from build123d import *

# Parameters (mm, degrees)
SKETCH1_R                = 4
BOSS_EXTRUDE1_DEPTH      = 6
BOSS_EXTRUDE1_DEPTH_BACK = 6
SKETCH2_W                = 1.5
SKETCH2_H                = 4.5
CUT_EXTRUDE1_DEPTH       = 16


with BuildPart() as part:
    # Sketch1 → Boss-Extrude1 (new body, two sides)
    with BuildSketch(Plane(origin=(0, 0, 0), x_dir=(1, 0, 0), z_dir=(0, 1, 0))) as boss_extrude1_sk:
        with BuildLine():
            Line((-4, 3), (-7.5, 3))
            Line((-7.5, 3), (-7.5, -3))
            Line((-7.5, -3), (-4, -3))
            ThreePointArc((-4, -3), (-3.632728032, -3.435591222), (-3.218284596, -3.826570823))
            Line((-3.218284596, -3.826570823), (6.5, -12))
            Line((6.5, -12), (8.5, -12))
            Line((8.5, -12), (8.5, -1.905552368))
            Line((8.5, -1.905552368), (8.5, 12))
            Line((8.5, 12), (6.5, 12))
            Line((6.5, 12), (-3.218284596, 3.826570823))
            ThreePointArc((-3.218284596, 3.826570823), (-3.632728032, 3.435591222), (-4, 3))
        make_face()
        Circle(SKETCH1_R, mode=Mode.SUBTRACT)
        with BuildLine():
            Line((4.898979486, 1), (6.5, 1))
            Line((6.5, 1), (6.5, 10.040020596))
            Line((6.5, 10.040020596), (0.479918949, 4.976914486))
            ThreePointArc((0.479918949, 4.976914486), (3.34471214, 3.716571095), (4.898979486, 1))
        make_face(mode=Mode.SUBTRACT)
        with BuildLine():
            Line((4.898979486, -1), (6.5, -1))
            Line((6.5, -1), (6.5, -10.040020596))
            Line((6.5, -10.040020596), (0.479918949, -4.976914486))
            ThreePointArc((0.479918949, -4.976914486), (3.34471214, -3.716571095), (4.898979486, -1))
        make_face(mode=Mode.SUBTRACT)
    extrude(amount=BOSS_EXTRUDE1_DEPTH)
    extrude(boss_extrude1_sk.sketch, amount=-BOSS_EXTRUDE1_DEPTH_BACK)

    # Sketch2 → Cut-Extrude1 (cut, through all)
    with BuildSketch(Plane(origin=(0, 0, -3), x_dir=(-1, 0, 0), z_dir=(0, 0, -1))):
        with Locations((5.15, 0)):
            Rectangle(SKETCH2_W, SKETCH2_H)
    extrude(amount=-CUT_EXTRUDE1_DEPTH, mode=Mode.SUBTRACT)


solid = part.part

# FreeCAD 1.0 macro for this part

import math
import FreeCAD as App
import Part
import Sketcher

V = App.Vector

doc = App.newDocument("Part")
params = doc.addObject("Spreadsheet::Sheet", "Params")
for row, (alias, value) in enumerate([
    ("sketch1_diameter", "8 mm"),
    ("sketch1_radius", "5 mm"),
    ("sketch1_width", "2 mm"),
    ("sketch1_height", "6 mm"),
    ("sketch1_height2", "24 mm"),
    ("pad1_length", "6 mm"),
    ("pad1_length2", "6 mm"),
    ("sketch2_width", "1.5 mm"),
    ("sketch2_height", "4.5 mm"),
], start=1):
    params.set(f"A{row}", alias)
    params.set(f"B{row}", "=" + value)
    params.setAlias(f"B{row}", alias)

body = doc.addObject("PartDesign::Body", "Body")

sketch1 = body.newObject("Sketcher::SketchObject", "Sketch")
sketch1.AttachmentSupport = (doc.getObject("XZ_Plane"), [""])
sketch1.MapMode = "FlatFace"
sketch1.addGeometry([
    Part.LineSegment(V(-4, -3, 0), V(-7.5, -3, 0)),
    Part.LineSegment(V(-7.5, -3, 0), V(-7.5, 3, 0)),
    Part.LineSegment(V(-7.5, 3, 0), V(-4, 3, 0)),
    Part.ArcOfCircle(Part.Circle(V(0, 0, 0), V(0, 0, 1), 5), math.radians(130.07), math.radians(143.13)),
    Part.LineSegment(V(-3.2, 3.8, 0), V(6.5, 12, 0)),
    Part.LineSegment(V(6.5, 12, 0), V(8.5, 12, 0)),
    Part.LineSegment(V(8.5, 12, 0), V(8.5, -12, 0)),
    Part.LineSegment(V(8.5, -12, 0), V(6.5, -12, 0)),
    Part.LineSegment(V(6.5, -12, 0), V(-3.2, -3.8, 0)),
    Part.ArcOfCircle(Part.Circle(V(0, 0, 0), V(0, 0, 1), 5), math.radians(-143.13), math.radians(-130.07)),
    Part.ArcOfCircle(Part.Circle(V(0, 0, 0), V(0, 0, 1), 5), math.radians(12), math.radians(84)),
    Part.LineSegment(V(4.9, 1, 0), V(6.5, 1, 0)),
    Part.LineSegment(V(6.5, 1, 0), V(6.5, 10, 0)),
    Part.LineSegment(V(6.5, 10, 0), V(0.5, 5, 0)),
    Part.Circle(V(0, 0, 0), V(0, 0, 1), 4),
    Part.LineSegment(V(6.5, -1, 0), V(4.9, -1, 0)),
    Part.ArcOfCircle(Part.Circle(V(0, 0, 0), V(0, 0, 1), 5), math.radians(-84), math.radians(-12)),
    Part.LineSegment(V(0.5, -5, 0), V(6.5, -10, 0)),
    Part.LineSegment(V(6.5, -10, 0), V(6.5, -1, 0)),
], False)
sketch1.addConstraint([
    Sketcher.Constraint("Coincident", 0, 2, 1, 1),
    Sketcher.Constraint("Coincident", 1, 2, 2, 1),
    Sketcher.Constraint("Coincident", 2, 2, 3, 2),
    Sketcher.Constraint("Tangent", 3, 1, 4, 1),
    Sketcher.Constraint("Coincident", 4, 2, 5, 1),
    Sketcher.Constraint("Coincident", 5, 2, 6, 1),
    Sketcher.Constraint("Coincident", 6, 2, 7, 1),
    Sketcher.Constraint("Coincident", 7, 2, 8, 1),
    Sketcher.Constraint("Tangent", 8, 2, 9, 2),
    Sketcher.Constraint("Coincident", 9, 1, 0, 1),
    Sketcher.Constraint("Coincident", 10, 1, 11, 1),
    Sketcher.Constraint("Coincident", 11, 2, 12, 1),
    Sketcher.Constraint("Coincident", 12, 2, 13, 1),
    Sketcher.Constraint("Coincident", 13, 2, 10, 2),
    Sketcher.Constraint("Coincident", 15, 2, 16, 2),
    Sketcher.Constraint("Coincident", 16, 1, 17, 1),
    Sketcher.Constraint("Coincident", 17, 2, 18, 1),
    Sketcher.Constraint("Coincident", 18, 2, 15, 1),
    Sketcher.Constraint("Horizontal", 0),
    Sketcher.Constraint("Vertical", 1),
    Sketcher.Constraint("Horizontal", 2),
    Sketcher.Constraint("Horizontal", 5),
    Sketcher.Constraint("Vertical", 6),
    Sketcher.Constraint("Horizontal", 7),
    Sketcher.Constraint("Horizontal", 11),
    Sketcher.Constraint("Vertical", 12),
    Sketcher.Constraint("Horizontal", 15),
    Sketcher.Constraint("Vertical", 18),
    Sketcher.Constraint("Coincident", 3, 3, -1, 1),
    Sketcher.Constraint("Coincident", 9, 3, -1, 1),
    Sketcher.Constraint("Coincident", 10, 3, -1, 1),
    Sketcher.Constraint("Coincident", 14, 3, -1, 1),
    Sketcher.Constraint("Coincident", 16, 3, -1, 1),
    Sketcher.Constraint("Equal", 3, 9),
    Sketcher.Constraint("Equal", 9, 10),
    Sketcher.Constraint("Equal", 10, 16),
    Sketcher.Constraint("Symmetric", 4, 2, 7, 2, -1),
    Sketcher.Constraint("Symmetric", 12, 2, 17, 2, -1),
    Sketcher.Constraint("Parallel", 4, 13),
    Sketcher.Constraint("Parallel", 8, 17),
    Sketcher.Constraint("Vertical", 2, 2, 9, 1),
    Sketcher.Constraint("Vertical", 7, 2, 11, 2),
    Sketcher.Constraint("Vertical", 10, 1, 15, 2),
    Sketcher.Constraint("Diameter", 14, 8.0),
    Sketcher.Constraint("Radius", 3, 5.0),
    Sketcher.Constraint("DistanceX", 5, 1, 5, 2, 2.0),
    Sketcher.Constraint("DistanceY", 1, 1, 1, 2, 6.0),
    Sketcher.Constraint("DistanceY", 6, 2, 6, 1, 24.0),
    Sketcher.Constraint("DistanceX", 0, 2, 0, 1, 3.5),
    Sketcher.Constraint("DistanceY", -1, 1, 10, 1, 1.0),
    Sketcher.Constraint("DistanceX", -1, 1, 4, 2, 6.5),
    Sketcher.Constraint("DistanceY", 12, 1, 12, 2, 9.040021),
])
sketch1.setExpression("Constraints[43]", "Params.sketch1_diameter")
sketch1.setExpression("Constraints[44]", "Params.sketch1_radius")
sketch1.setExpression("Constraints[45]", "Params.sketch1_width")
sketch1.setExpression("Constraints[46]", "Params.sketch1_height")
sketch1.setExpression("Constraints[47]", "Params.sketch1_height2")
pad1 = body.newObject("PartDesign::Pad", "Pad")
pad1.Profile = sketch1
pad1.Type = "TwoLengths"
pad1.setExpression("Length", "Params.pad1_length")
pad1.setExpression("Length2", "Params.pad1_length2")
pad1.Reversed = True

sketch2 = body.newObject("Sketcher::SketchObject", "Sketch001")
sketch2.AttachmentSupport = (doc.getObject("XY_Plane"), [""])
sketch2.MapMode = "FlatFace"
sketch2.AttachmentOffset = App.Placement(V(0, 0, -3), App.Rotation())
sketch2.addGeometry([
    Part.LineSegment(V(-4.4, 2.2, 0), V(-4.4, -2.2, 0)),
    Part.LineSegment(V(-4.4, -2.2, 0), V(-5.9, -2.2, 0)),
    Part.LineSegment(V(-5.9, -2.2, 0), V(-5.9, 2.2, 0)),
    Part.LineSegment(V(-5.9, 2.2, 0), V(-4.4, 2.2, 0)),
], False)
sketch2.addConstraint([
    Sketcher.Constraint("Coincident", 0, 2, 1, 1),
    Sketcher.Constraint("Coincident", 1, 2, 2, 1),
    Sketcher.Constraint("Coincident", 2, 2, 3, 1),
    Sketcher.Constraint("Coincident", 3, 2, 0, 1),
    Sketcher.Constraint("Vertical", 0),
    Sketcher.Constraint("Horizontal", 1),
    Sketcher.Constraint("Vertical", 2),
    Sketcher.Constraint("Horizontal", 3),
    Sketcher.Constraint("DistanceX", 1, 2, 1, 1, 1.5),
    Sketcher.Constraint("DistanceY", 0, 2, 0, 1, 4.5),
    Sketcher.Constraint("DistanceX", 0, 2, -1, 1, 4.4),
    Sketcher.Constraint("DistanceY", 0, 2, -1, 1, 2.25),
])
sketch2.setExpression("Constraints[8]", "Params.sketch2_width")
sketch2.setExpression("Constraints[9]", "Params.sketch2_height")
pocket1 = body.newObject("PartDesign::Pocket", "Pocket")
pocket1.Profile = sketch2
pocket1.Type = "ThroughAll"
pocket1.Reversed = True

doc.recompute()
